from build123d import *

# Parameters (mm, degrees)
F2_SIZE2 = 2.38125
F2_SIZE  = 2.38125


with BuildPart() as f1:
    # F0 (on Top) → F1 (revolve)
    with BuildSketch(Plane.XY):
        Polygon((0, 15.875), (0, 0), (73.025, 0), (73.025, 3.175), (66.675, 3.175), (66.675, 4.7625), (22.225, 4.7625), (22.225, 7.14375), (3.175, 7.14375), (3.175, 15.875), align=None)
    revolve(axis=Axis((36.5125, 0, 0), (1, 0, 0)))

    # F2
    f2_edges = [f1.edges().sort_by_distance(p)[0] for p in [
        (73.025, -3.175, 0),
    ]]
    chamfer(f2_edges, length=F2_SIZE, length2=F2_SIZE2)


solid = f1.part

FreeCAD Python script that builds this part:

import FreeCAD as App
import Part
import Sketcher

V = App.Vector
Q = App.Units.Quantity


def edges_at(feature, points):
    """Names of the edges that pass closest to the given points."""
    edges = feature.Shape.Edges
    near = lambda p: min(range(len(edges)), key=lambda i: edges[i].distToShape(Part.Vertex(*p))[0])
    return sorted({f"Edge{near(p) + 1}" for p in points})


def add_polygon(sketch, points):
    """Adds a closed chain of lines whose ends are joined by coincident constraints."""
    first, n = sketch.GeometryCount, len(points)
    for a, b in zip(points, points[1:] + points[:1]):
        sketch.addGeometry(Part.LineSegment(App.Vector(*a, 0), App.Vector(*b, 0)), False)
    for i in range(n):
        sketch.addConstraint(Sketcher.Constraint("Coincident", first + i, 2, first + (i + 1) % n, 1))

doc = App.newDocument("Part")
params = doc.addObject("Spreadsheet::Sheet", "Params")
for row, (alias, value) in enumerate([
    ("sketch1_width", "0.25 in"),
    ("sketch1_width2", "0.75 in"),
    ("sketch1_width3", "2.875 in"),
    ("sketch1_height", "0.625 in"),
    ("sketch1_height2", "0.0625 in"),
    ("revolution_angle", "360 deg"),
    ("chamfer_size", "0.09375 in"),
    ("chamfer_size2", "0.09375 in"),
], start=1):
    params.set(f"A{row}", alias)
    params.set(f"B{row}", "=" + value)
    params.setAlias(f"B{row}", alias)

body = doc.addObject("PartDesign::Body", "Body")

sketch1 = body.newObject("Sketcher::SketchObject", "Sketch")
sketch1.AttachmentSupport = (doc.getObject("XY_Plane"), [""])
sketch1.MapMode = "FlatFace"
add_polygon(sketch1, [(0, 15.9), (0, 0), (73, 0), (73, 3.2), (66.7, 3.2), (66.7, 4.8), (22.2, 4.8), (22.2, 7.1), (3.2, 7.1), (3.2, 15.9)])
sketch1.addConstraint([
    Sketcher.Constraint("Vertical", 0),
    Sketcher.Constraint("Horizontal", 1),
    Sketcher.Constraint("Vertical", 2),
    Sketcher.Constraint("Horizontal", 3),
    Sketcher.Constraint("Vertical", 4),
    Sketcher.Constraint("Horizontal", 5),
    Sketcher.Constraint("Vertical", 6),
    Sketcher.Constraint("Horizontal", 7),
    Sketcher.Constraint("Vertical", 8),
    Sketcher.Constraint("Horizontal", 9),
    Sketcher.Constraint("Coincident", 0, 2, -1, 1),
    Sketcher.Constraint("Equal", 9, 2),
    Sketcher.Constraint("DistanceX", 5, 2, 2, 2, Q("2 in")),
    Sketcher.Constraint("DistanceX", 3, 2, 3, 1, Q("0.25 in")),
    Sketcher.Constraint("DistanceX", 7, 2, 7, 1, Q("0.75 in")),
    Sketcher.Constraint("DistanceX", 1, 1, 1, 2, Q("2.875 in")),
    Sketcher.Constraint("DistanceY", 0, 2, 0, 1, Q("0.625 in")),
    Sketcher.Constraint("DistanceY", 4, 1, 4, 2, Q("0.0625 in")),
    Sketcher.Constraint("DistanceY", 6, 1, 6, 2, Q("0.09375 in")),
])
sketch1.setExpression("Constraints[23]", "Params.sketch1_width")
sketch1.setExpression("Constraints[24]", "Params.sketch1_width2")
sketch1.setExpression("Constraints[25]", "Params.sketch1_width3")
sketch1.setExpression("Constraints[26]", "Params.sketch1_height")
sketch1.setExpression("Constraints[27]", "Params.sketch1_height2")
revolution = body.newObject("PartDesign::Revolution", "Revolution")
revolution.Profile = sketch1
revolution.ReferenceAxis = (sketch1, ["H_Axis"])
revolution.setExpression("Angle", "Params.revolution_angle")
doc.recompute()

chamfer = body.newObject("PartDesign::Chamfer", "Chamfer")
chamfer.Base = (revolution, edges_at(revolution, [(73.025, -3.175, 0)]))
chamfer.ChamferType = "Two distances"
chamfer.setExpression("Size", "Params.chamfer_size")
chamfer.setExpression("Size2", "Params.chamfer_size2")

doc.recompute()
